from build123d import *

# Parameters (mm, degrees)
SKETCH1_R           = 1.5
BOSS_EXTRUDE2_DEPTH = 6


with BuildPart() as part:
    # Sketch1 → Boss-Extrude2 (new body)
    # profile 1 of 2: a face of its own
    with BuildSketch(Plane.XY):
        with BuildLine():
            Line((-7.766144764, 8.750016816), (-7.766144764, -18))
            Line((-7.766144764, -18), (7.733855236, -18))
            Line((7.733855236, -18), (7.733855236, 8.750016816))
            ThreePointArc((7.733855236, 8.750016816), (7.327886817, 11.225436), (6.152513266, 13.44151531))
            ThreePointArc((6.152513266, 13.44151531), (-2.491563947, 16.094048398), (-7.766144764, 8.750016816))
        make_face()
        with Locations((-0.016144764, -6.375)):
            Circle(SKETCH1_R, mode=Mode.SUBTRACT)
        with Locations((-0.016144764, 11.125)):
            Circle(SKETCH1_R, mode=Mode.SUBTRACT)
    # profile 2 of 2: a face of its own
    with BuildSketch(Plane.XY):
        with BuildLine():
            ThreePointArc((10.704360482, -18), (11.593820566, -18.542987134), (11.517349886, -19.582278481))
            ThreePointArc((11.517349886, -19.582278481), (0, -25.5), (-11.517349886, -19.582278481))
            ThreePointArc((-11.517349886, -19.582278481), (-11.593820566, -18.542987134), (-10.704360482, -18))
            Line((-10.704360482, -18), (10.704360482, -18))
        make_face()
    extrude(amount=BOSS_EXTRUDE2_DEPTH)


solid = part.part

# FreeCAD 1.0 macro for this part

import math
import FreeCAD as App
import Part
import Sketcher
Q = App.Units.Quantity

doc = App.newDocument("Part")
body = doc.addObject("PartDesign::Body", "Body")

# Sketch on XY plane
sketch1 = body.newObject("Sketcher::SketchObject", "Sketch")
sketch1.AttachmentSupport = (doc.getObject("XY_Plane"), [""])
sketch1.MapMode = "FlatFace"
sketch1.addGeometry(Part.LineSegment(App.Vector(-7.8, 8.8, 0), App.Vector(-7.8, -18, 0)), False)
sketch1.addGeometry(Part.LineSegment(App.Vector(-7.8, -18, 0), App.Vector(-10.7, -18, 0)), False)
sketch1.addGeometry(Part.ArcOfCircle(Part.Circle(App.Vector(-10.7, -19, 0), App.Vector(0, 0, 1), 1), math.radians(90), math.radians(216)), False)
sketch1.addGeometry(Part.ArcOfCircle(Part.Circle(App.Vector(0, -11.3, 0), App.Vector(0, 0, 1), 14.2), math.radians(-144), math.radians(-36)), False)
sketch1.addGeometry(Part.ArcOfCircle(Part.Circle(App.Vector(10.7, -19, 0), App.Vector(0, 0, 1), 1), math.radians(-36), math.radians(90)), False)
sketch1.addGeometry(Part.LineSegment(App.Vector(10.7, -18, 0), App.Vector(7.7, -18, 0)), False)
sketch1.addGeometry(Part.LineSegment(App.Vector(7.7, -18, 0), App.Vector(7.7, 8.8, 0)), False)
sketch1.addGeometry(Part.ArcOfCircle(Part.Circle(App.Vector(0, 8.8, 0), App.Vector(0, 0, 1), 7.8), math.radians(0), math.radians(37)), False)
sketch1.addGeometry(Part.ArcOfCircle(Part.Circle(App.Vector(0, 8.8, 0), App.Vector(0, 0, 1), 7.8), math.radians(37), math.radians(180)), False)
sketch1.addGeometry(Part.Circle(App.Vector(0, -6.4, 0), App.Vector(0, 0, 1), 1.5), False)
sketch1.addGeometry(Part.Circle(App.Vector(0, 11.1, 0), App.Vector(0, 0, 1), 1.5), False)
sketch1.addConstraint(Sketcher.Constraint("Coincident", 0, 2, 1, 1))
sketch1.addConstraint(Sketcher.Constraint("Tangent", 1, 2, 2, 1))
sketch1.addConstraint(Sketcher.Constraint("Tangent", 2, 2, 3, 1))
sketch1.addConstraint(Sketcher.Constraint("Tangent", 3, 2, 4, 1))
sketch1.addConstraint(Sketcher.Constraint("Tangent", 4, 2, 5, 1))
sketch1.addConstraint(Sketcher.Constraint("Coincident", 5, 2, 6, 1))
sketch1.addConstraint(Sketcher.Constraint("Tangent", 6, 2, 7, 1))
sketch1.addConstraint(Sketcher.Constraint("Tangent", 7, 2, 8, 1))
sketch1.addConstraint(Sketcher.Constraint("Tangent", 8, 2, 0, 1))
sketch1.addConstraint(Sketcher.Constraint("Vertical", 0))
sketch1.addConstraint(Sketcher.Constraint("Horizontal", 1))
sketch1.addConstraint(Sketcher.Constraint("Horizontal", 5))
sketch1.addConstraint(Sketcher.Constraint("Vertical", 6))
sketch1.addConstraint(Sketcher.Constraint("Equal", 2, 4))
sketch1.addConstraint(Sketcher.Constraint("Equal", 7, 8))
sketch1.addConstraint(Sketcher.Constraint("Equal", 9, 10))
sketch1.addConstraint(Sketcher.Constraint("Symmetric", 2, 3, 4, 3, -2))
sketch1.addConstraint(Sketcher.Constraint("Vertical", 8, 3, 9, 3))
sketch1.addConstraint(Sketcher.Constraint("Vertical", 9, 3, 10, 3))
sketch1.addConstraint(Sketcher.Constraint("Diameter", 9, Q("3 mm")))
sketch1.addConstraint(Sketcher.Constraint("Radius", 2, Q("1 mm")))
sketch1.addConstraint(Sketcher.Constraint("Radius", 7, Q("7.75 mm")))
sketch1.addConstraint(Sketcher.Constraint("DistanceY", 2, 3, -1, 1, Q("19 mm")))
sketch1.addConstraint(Sketcher.Constraint("DistanceY", 9, 3, 10, 3, Q("17.5 mm")))
sketch1.addConstraint(Sketcher.Constraint("DistanceY", 9, 3, -1, 1, Q("6.375 mm")))
sketch1.addConstraint(Sketcher.Constraint("Radius", 3, Q("14.166667 mm")))
sketch1.addConstraint(Sketcher.Constraint("DistanceY", 6, 2, 7, 2, Q("4.691498 mm")))
sketch1.addConstraint(Sketcher.Constraint("DistanceX", 1, 2, 1, 1, Q("2.938216 mm")))
sketch1.addConstraint(Sketcher.Constraint("DistanceX", 5, 2, 5, 1, Q("2.970505 mm")))
sketch1.addConstraint(Sketcher.Constraint("DistanceY", 0, 2, 0, 1, Q("26.750017 mm")))
pad1 = body.newObject("PartDesign::Pad", "Pad")
pad1.Profile = sketch1
pad1.Length = 6

doc.recompute()
